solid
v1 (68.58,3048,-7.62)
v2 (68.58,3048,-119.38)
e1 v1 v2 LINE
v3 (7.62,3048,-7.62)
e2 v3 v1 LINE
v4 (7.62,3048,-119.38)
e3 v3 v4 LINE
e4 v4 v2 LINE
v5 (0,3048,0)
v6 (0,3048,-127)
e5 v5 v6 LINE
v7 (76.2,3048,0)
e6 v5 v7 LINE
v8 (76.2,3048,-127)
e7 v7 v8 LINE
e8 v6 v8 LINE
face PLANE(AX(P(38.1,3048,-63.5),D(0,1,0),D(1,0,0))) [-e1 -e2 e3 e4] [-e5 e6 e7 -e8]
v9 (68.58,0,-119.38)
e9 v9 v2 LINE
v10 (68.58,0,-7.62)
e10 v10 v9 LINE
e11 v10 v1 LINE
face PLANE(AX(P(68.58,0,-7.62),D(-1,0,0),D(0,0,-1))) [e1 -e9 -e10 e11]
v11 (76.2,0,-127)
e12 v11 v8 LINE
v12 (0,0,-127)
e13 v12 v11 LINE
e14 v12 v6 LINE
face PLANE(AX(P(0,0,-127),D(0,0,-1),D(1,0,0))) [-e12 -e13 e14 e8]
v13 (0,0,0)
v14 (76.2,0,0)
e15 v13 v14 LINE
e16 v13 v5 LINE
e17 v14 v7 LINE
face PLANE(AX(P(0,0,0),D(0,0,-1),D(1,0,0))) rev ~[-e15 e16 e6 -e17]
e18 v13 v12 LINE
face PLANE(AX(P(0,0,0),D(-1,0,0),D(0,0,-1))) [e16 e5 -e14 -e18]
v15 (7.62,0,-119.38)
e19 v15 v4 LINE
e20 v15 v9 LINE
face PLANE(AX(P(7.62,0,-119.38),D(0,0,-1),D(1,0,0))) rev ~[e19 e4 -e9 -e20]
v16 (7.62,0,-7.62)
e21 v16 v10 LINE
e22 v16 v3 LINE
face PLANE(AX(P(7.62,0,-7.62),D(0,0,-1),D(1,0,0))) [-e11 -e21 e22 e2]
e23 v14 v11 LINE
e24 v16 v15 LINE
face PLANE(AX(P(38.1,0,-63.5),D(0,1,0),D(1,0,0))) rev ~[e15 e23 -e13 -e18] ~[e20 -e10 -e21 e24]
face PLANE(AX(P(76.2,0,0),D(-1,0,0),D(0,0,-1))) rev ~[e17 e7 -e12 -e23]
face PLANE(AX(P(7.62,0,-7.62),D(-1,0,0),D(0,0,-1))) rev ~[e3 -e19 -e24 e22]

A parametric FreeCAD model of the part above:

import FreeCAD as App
import Part
import Sketcher
Q = App.Units.Quantity


def add_polygon(sketch, points):
    """Adds a closed chain of lines whose ends are joined by coincident constraints."""
    first, n = sketch.GeometryCount, len(points)
    for a, b in zip(points, points[1:] + points[:1]):
        sketch.addGeometry(Part.LineSegment(App.Vector(*a, 0), App.Vector(*b, 0)), False)
    for i in range(n):
        sketch.addConstraint(Sketcher.Constraint("Coincident", first + i, 2, first + (i + 1) % n, 1))

doc = App.newDocument("Part")
body = doc.addObject("PartDesign::Body", "Body")

sketch1 = body.newObject("Sketcher::SketchObject", "Sketch")
sketch1.AttachmentSupport = (doc.getObject("XZ_Plane"), [""])
sketch1.MapMode = "FlatFace"
add_polygon(sketch1, [(0, -127), (0, 0), (76, 0), (76, -127)])
add_polygon(sketch1, [(69, -8), (8, -8), (8, -119), (69, -119)])
sketch1.addConstraint([
    Sketcher.Constraint("Vertical", 0),
    Sketcher.Constraint("Horizontal", 1),
    Sketcher.Constraint("Vertical", 2),
    Sketcher.Constraint("Horizontal", 3),
    Sketcher.Constraint("Horizontal", 4),
    Sketcher.Constraint("Vertical", 5),
    Sketcher.Constraint("Horizontal", 6),
    Sketcher.Constraint("Vertical", 7),
    Sketcher.Constraint("Coincident", 0, 2, -1, 1),
    Sketcher.Constraint("DistanceX", 1, 1, 1, 2, Q("3 in")),
    Sketcher.Constraint("DistanceY", 0, 1, 0, 2, Q("5 in")),
    Sketcher.Constraint("DistanceX", 4, 2, 4, 1, Q("2.4 in")),
    Sketcher.Constraint("DistanceY", 5, 2, 5, 1, Q("4.4 in")),
    Sketcher.Constraint("DistanceX", -1, 1, 4, 2, Q("0.3 in")),
    Sketcher.Constraint("DistanceY", 4, 2, -1, 1, Q("0.3 in")),
])
pad1 = body.newObject("PartDesign::Pad", "Pad")
pad1.Profile = sketch1
pad1.Length = Q("120 in")
pad1.Reversed = True

doc.recompute()
